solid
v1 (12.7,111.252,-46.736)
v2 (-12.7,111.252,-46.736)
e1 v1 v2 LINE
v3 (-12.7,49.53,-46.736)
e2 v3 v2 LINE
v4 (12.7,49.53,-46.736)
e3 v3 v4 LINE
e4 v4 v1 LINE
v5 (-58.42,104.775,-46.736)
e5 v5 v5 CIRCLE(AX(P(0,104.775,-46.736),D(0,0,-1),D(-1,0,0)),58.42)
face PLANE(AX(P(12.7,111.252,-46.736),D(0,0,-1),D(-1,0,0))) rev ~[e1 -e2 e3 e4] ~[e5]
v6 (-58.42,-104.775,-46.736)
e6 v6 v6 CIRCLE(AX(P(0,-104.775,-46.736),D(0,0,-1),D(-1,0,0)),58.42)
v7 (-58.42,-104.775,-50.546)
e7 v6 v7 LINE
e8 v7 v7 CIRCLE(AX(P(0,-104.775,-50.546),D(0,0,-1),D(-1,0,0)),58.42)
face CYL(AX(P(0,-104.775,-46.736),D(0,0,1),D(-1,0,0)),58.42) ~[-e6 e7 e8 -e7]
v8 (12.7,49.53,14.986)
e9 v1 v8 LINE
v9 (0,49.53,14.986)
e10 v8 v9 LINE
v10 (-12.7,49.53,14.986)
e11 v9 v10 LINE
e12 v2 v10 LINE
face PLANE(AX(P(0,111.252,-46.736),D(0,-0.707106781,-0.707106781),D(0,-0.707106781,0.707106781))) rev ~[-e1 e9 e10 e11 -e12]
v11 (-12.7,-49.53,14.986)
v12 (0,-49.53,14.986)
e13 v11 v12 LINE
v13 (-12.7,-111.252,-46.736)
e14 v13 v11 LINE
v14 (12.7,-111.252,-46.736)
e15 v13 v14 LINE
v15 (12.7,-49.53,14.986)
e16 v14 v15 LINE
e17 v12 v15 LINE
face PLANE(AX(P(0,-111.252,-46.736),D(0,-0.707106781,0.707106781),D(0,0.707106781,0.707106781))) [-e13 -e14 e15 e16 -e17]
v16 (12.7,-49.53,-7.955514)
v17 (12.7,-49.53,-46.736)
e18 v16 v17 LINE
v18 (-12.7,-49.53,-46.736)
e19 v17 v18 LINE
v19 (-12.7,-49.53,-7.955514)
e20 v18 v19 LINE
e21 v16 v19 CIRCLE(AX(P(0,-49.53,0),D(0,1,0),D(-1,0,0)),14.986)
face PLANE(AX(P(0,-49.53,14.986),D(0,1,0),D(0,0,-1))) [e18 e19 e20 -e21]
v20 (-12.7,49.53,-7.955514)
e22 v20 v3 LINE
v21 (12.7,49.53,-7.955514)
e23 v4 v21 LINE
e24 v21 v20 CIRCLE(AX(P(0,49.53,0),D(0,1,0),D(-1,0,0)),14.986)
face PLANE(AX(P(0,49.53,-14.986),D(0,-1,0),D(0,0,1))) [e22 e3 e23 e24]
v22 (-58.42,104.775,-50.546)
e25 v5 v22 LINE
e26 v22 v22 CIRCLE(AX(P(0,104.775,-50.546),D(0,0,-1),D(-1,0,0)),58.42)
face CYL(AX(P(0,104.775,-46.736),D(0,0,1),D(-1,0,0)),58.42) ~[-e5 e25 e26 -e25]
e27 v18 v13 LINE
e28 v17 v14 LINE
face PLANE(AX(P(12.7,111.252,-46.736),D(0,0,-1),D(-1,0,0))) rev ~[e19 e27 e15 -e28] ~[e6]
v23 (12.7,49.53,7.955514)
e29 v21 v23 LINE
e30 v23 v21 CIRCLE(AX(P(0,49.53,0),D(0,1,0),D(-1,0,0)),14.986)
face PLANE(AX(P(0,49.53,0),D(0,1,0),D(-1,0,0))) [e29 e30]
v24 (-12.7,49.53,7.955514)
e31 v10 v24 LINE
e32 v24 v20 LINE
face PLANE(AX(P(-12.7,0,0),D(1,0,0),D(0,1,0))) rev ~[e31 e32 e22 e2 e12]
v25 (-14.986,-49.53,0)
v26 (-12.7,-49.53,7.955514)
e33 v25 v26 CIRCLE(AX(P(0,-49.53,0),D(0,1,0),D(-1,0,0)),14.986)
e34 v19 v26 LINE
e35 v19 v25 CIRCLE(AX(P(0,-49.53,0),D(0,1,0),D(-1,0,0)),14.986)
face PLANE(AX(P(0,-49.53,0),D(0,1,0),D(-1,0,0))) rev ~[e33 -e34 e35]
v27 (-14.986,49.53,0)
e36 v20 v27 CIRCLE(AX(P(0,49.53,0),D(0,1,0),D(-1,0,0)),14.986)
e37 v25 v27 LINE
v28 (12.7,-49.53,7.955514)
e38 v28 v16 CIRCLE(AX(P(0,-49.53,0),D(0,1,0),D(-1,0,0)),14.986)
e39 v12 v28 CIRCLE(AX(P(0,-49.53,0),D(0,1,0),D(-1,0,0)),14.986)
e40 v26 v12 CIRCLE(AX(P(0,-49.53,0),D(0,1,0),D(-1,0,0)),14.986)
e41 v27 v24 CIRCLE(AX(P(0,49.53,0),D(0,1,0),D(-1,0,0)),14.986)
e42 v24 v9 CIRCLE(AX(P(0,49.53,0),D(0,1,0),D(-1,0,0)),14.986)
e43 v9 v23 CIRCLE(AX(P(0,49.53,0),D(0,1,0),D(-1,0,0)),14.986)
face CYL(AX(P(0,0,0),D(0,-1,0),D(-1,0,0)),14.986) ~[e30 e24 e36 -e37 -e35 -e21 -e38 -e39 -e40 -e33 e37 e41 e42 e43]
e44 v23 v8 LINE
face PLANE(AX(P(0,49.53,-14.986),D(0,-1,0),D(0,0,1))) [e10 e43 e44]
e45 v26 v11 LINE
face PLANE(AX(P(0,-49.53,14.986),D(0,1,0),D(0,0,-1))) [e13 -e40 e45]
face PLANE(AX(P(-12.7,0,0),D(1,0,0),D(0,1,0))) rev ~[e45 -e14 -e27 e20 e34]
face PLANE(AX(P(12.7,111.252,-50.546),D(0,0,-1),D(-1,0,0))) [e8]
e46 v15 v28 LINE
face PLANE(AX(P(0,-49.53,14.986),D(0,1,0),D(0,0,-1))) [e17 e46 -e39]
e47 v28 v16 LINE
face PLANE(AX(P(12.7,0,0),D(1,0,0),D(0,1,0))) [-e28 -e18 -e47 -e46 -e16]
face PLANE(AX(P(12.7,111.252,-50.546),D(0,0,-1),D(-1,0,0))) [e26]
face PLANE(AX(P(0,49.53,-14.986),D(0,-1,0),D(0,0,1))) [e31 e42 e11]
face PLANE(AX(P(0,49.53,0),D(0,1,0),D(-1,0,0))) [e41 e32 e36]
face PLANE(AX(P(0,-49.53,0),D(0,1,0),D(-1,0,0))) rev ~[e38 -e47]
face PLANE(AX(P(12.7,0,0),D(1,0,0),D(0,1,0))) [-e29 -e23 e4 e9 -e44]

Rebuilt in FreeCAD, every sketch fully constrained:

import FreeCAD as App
import Part
import Sketcher
Q = App.Units.Quantity


def add_polygon(sketch, points):
    """Adds a closed chain of lines whose ends are joined by coincident constraints."""
    first, n = sketch.GeometryCount, len(points)
    for a, b in zip(points, points[1:] + points[:1]):
        sketch.addGeometry(Part.LineSegment(App.Vector(*a, 0), App.Vector(*b, 0)), False)
    for i in range(n):
        sketch.addConstraint(Sketcher.Constraint("Coincident", first + i, 2, first + (i + 1) % n, 1))

doc = App.newDocument("Part")
body = doc.addObject("PartDesign::Body", "Body")

# Sketch on XZ plane
sketch1 = doc.addObject("Sketcher::SketchObject", "Sketch")
body.addObject(sketch1)
sketch1.AttachmentSupport = (doc.XZ_Plane, [""])
sketch1.MapMode = "FlatFace"
sketch1.addGeometry(Part.Circle(App.Vector(0, 0, 0), App.Vector(0, 0, 1), 15), False)
sketch1.addConstraint(Sketcher.Constraint("Coincident", 0, 3, -1, 1))
sketch1.addConstraint(Sketcher.Constraint("Diameter", 0, Q("1.18 in")))
pad1 = doc.addObject("PartDesign::Pad", "Pad")
body.addObject(pad1)
pad1.Profile = sketch1
pad1.Length = Q("3.9 in")
pad1.Midplane = True

# Sketch on YZ plane
sketch2 = doc.addObject("Sketcher::SketchObject", "Sketch001")
body.addObject(sketch2)
sketch2.AttachmentSupport = (doc.YZ_Plane, [""])
sketch2.MapMode = "FlatFace"
add_polygon(sketch2, [(-50, -47), (-50, 15), (-111, -47)])  # lines 0-2
add_polygon(sketch2, [(50, 15), (50, -47), (111, -47)])  # lines 3-5
sketch2.addConstraint(Sketcher.Constraint("Vertical", 0))
sketch2.addConstraint(Sketcher.Constraint("Horizontal", 2))
sketch2.addConstraint(Sketcher.Constraint("Vertical", 3))
sketch2.addConstraint(Sketcher.Constraint("Horizontal", 4))
sketch2.addConstraint(Sketcher.Constraint("Symmetric", 2, 2, 3, 2, -2))
sketch2.addConstraint(Sketcher.Constraint("Perpendicular", 1, 5))
sketch2.addConstraint(Sketcher.Constraint("Horizontal", 0, 2, 5, 2))
sketch2.addConstraint(Sketcher.Constraint("Equal", 2, 4))
sketch2.addConstraint(Sketcher.Constraint("DistanceX", 2, 1, 2, 2, Q("2.43 in")))
sketch2.addConstraint(Sketcher.Constraint("DistanceX", 2, 2, 3, 2, Q("3.9 in")))
sketch2.addConstraint(Sketcher.Constraint("DistanceY", -1, 1, 0, 2, Q("0.59 in")))
pad2 = doc.addObject("PartDesign::Pad", "Pad001")
body.addObject(pad2)
pad2.Profile = sketch2
pad2.Length = Q("1 in")
pad2.Midplane = True

# Sketch on XY plane
sketch3 = doc.addObject("Sketcher::SketchObject", "Sketch002")
body.addObject(sketch3)
sketch3.AttachmentSupport = (doc.XY_Plane, [""])
sketch3.MapMode = "FlatFace"
sketch3.AttachmentOffset = App.Placement(App.Vector(0, 0, -1.84 * 25.4), App.Rotation())
sketch3.addGeometry(Part.Circle(App.Vector(0, 105, 0), App.Vector(0, 0, 1), 58), False)
sketch3.addGeometry(Part.Circle(App.Vector(0, -105, 0), App.Vector(0, 0, 1), 58), False)
sketch3.addConstraint(Sketcher.Constraint("Equal", 0, 1))
sketch3.addConstraint(Sketcher.Constraint("Symmetric", 0, 3, 1, 3, -1, 1))
sketch3.addConstraint(Sketcher.Constraint("PointOnObject", 0, 3, -2))
sketch3.addConstraint(Sketcher.Constraint("Diameter", 0, Q("4.6 in")))
sketch3.addConstraint(Sketcher.Constraint("DistanceY", -1, 1, 0, 3, Q("4.125 in")))
pad3 = doc.addObject("PartDesign::Pad", "Pad002")
body.addObject(pad3)
pad3.Profile = sketch3
pad3.Length = Q("0.15 in")
pad3.Reversed = True

doc.recompute()
